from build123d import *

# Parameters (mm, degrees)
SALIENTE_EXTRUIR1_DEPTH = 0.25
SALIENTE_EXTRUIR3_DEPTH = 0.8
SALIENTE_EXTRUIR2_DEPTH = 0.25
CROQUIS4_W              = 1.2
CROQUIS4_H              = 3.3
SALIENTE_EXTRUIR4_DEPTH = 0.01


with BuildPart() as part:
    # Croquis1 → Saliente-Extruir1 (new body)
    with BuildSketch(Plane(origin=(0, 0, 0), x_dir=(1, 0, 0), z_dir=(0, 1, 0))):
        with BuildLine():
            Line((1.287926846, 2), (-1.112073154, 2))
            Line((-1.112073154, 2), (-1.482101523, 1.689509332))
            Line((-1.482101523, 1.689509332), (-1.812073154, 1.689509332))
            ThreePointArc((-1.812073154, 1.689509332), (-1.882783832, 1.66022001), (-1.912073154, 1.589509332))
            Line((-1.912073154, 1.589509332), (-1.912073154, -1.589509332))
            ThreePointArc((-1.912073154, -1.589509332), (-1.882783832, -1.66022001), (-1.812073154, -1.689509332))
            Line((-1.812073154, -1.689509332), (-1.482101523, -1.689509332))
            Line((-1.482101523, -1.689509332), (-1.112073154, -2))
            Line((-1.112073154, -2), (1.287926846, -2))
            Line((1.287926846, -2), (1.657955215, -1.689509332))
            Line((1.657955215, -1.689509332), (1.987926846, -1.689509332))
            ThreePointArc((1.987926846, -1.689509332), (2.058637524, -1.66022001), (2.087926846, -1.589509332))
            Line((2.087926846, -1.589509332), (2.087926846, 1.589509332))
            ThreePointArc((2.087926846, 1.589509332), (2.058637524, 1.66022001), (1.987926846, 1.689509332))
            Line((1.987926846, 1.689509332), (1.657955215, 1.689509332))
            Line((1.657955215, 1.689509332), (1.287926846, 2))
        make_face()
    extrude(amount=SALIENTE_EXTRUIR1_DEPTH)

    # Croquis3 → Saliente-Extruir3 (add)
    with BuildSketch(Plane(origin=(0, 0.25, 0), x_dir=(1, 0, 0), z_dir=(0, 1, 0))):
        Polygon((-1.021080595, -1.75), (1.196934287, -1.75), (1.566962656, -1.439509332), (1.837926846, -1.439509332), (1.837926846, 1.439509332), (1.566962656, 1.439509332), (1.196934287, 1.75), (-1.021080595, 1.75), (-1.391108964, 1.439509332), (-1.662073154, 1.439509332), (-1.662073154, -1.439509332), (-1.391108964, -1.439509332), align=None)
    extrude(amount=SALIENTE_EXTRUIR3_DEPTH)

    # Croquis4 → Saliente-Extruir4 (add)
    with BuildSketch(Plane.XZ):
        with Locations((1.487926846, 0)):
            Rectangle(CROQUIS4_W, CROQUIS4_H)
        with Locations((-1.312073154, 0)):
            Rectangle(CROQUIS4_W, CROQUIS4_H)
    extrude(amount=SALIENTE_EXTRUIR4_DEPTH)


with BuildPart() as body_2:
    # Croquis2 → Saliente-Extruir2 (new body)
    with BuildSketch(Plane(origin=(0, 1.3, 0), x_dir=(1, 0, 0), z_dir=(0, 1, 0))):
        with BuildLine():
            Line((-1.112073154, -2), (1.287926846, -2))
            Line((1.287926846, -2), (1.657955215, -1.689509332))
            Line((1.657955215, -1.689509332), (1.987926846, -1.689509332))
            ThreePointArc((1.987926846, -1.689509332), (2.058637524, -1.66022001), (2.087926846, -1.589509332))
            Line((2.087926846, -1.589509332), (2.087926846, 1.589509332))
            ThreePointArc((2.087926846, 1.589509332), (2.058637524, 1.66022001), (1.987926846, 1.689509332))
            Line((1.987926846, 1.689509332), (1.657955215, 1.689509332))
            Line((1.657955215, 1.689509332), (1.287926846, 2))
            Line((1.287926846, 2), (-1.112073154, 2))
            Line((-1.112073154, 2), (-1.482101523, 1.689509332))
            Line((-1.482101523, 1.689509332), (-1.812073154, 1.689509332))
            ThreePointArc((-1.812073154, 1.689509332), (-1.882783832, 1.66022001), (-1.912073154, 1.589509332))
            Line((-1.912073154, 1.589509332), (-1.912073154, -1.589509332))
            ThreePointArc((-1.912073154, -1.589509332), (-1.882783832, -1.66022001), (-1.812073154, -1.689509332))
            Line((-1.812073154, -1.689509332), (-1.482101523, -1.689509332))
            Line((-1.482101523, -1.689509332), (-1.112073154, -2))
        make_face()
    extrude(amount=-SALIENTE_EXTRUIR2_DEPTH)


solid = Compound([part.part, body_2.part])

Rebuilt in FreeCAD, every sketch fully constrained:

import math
import FreeCAD as App
import Part
import Sketcher

V = App.Vector
Q = App.Units.Quantity

doc = App.newDocument("Part")
params = doc.addObject("Spreadsheet::Sheet", "Params")
for row, (alias, value) in enumerate([
    ("sketch1_radius", "0.1 mm"),
    ("sketch1_width", "2.4 mm"),
    ("pad1_length", "0.25 mm"),
    ("pad2_length", "0.8 mm"),
    ("sketch3_width", "1.2 mm"),
    ("sketch3_height", "3.3 mm"),
    ("pad3_length", "0.01 mm"),
    ("sketch4_radius", "0.1 mm"),
    ("sketch4_width", "2.4 mm"),
    ("pad4_length", "0.25 mm"),
], start=1):
    params.set(f"A{row}", alias)
    params.set(f"B{row}", "=" + value)
    params.setAlias(f"B{row}", alias)

body = doc.addObject("PartDesign::Body", "Body")

# Sketch on XZ plane
sketch1 = body.newObject("Sketcher::SketchObject", "Sketch")
sketch1.AttachmentSupport = (doc.getObject("XZ_Plane"), [""])
sketch1.MapMode = "FlatFace"
sketch1.addGeometry([
    Part.LineSegment(V(1.287927, -2, 0), V(-1.112073, -2, 0)),  # 0
    Part.LineSegment(V(-1.112073, -2, 0), V(-1.482102, -1.689509, 0)),  # 1
    Part.LineSegment(V(-1.482102, -1.689509, 0), V(-1.812073, -1.689509, 0)),  # 2
    Part.ArcOfCircle(Part.Circle(V(-1.812073, -1.589509, 0), V(0, 0, 1), 0.1), math.radians(180), math.radians(270)),  # 3
    Part.LineSegment(V(-1.912073, -1.589509, 0), V(-1.912073, 1.589509, 0)),  # 4
    Part.ArcOfCircle(Part.Circle(V(-1.812073, 1.589509, 0), V(0, 0, 1), 0.1), math.radians(90), math.radians(180)),  # 5
    Part.LineSegment(V(-1.812073, 1.689509, 0), V(-1.482102, 1.689509, 0)),  # 6
    Part.LineSegment(V(-1.482102, 1.689509, 0), V(-1.112073, 2, 0)),  # 7
    Part.LineSegment(V(-1.112073, 2, 0), V(1.287927, 2, 0)),  # 8
    Part.LineSegment(V(1.287927, 2, 0), V(1.657955, 1.689509, 0)),  # 9
    Part.LineSegment(V(1.657955, 1.689509, 0), V(1.987927, 1.689509, 0)),  # 10
    Part.ArcOfCircle(Part.Circle(V(1.987927, 1.589509, 0), V(0, 0, 1), 0.1), math.radians(0), math.radians(90)),  # 11
    Part.LineSegment(V(2.087927, 1.589509, 0), V(2.087927, -1.589509, 0)),  # 12
    Part.ArcOfCircle(Part.Circle(V(1.987927, -1.589509, 0), V(0, 0, 1), 0.1), math.radians(-90), math.radians(0)),  # 13
    Part.LineSegment(V(1.987927, -1.689509, 0), V(1.657955, -1.689509, 0)),  # 14
    Part.LineSegment(V(1.657955, -1.689509, 0), V(1.287927, -2, 0)),  # 15
], False)
sketch1.addConstraint([
    Sketcher.Constraint("Coincident", 0, 2, 1, 1),
    Sketcher.Constraint("Coincident", 1, 2, 2, 1),
    Sketcher.Constraint("Tangent", 2, 2, 3, 2),
    Sketcher.Constraint("Tangent", 3, 1, 4, 1),
    Sketcher.Constraint("Tangent", 4, 2, 5, 2),
    Sketcher.Constraint("Tangent", 5, 1, 6, 1),
    Sketcher.Constraint("Coincident", 6, 2, 7, 1),
    Sketcher.Constraint("Coincident", 7, 2, 8, 1),
    Sketcher.Constraint("Coincident", 8, 2, 9, 1),
    Sketcher.Constraint("Coincident", 9, 2, 10, 1),
    Sketcher.Constraint("Tangent", 10, 2, 11, 2),
    Sketcher.Constraint("Tangent", 11, 1, 12, 1),
    Sketcher.Constraint("Tangent", 12, 2, 13, 2),
    Sketcher.Constraint("Tangent", 13, 1, 14, 1),
    Sketcher.Constraint("Coincident", 14, 2, 15, 1),
    Sketcher.Constraint("Coincident", 15, 2, 0, 1),
    Sketcher.Constraint("Horizontal", 0),
    Sketcher.Constraint("Horizontal", 2),
    Sketcher.Constraint("Vertical", 4),
    Sketcher.Constraint("Horizontal", 6),
    Sketcher.Constraint("Horizontal", 8),
    Sketcher.Constraint("Horizontal", 10),
    Sketcher.Constraint("Vertical", 12),
    Sketcher.Constraint("Horizontal", 14),
    Sketcher.Constraint("Equal", 3, 5),
    Sketcher.Constraint("Equal", 5, 11),
    Sketcher.Constraint("Equal", 11, 13),
    Sketcher.Constraint("Symmetric", 1, 2, 6, 2, -1),
    Sketcher.Constraint("Symmetric", 0, 2, 7, 2, -1),
    Sketcher.Constraint("Symmetric", 9, 2, 14, 2, -1),
    Sketcher.Constraint("Parallel", 1, 9),
    Sketcher.Constraint("Parallel", 7, 15),
    Sketcher.Constraint("Horizontal", 5, 3, 11, 3),
    Sketcher.Constraint("Equal", 6, 10),
    Sketcher.Constraint("Radius", 3, Q("0.1 mm")),
    Sketcher.Constraint("Angle", 1, Q("140 deg")),
    Sketcher.Constraint("DistanceX", 0, 2, 0, 1, Q("2.4 mm")),
    Sketcher.Constraint("DistanceY", 0, 2, -1, 1, Q("2 mm")),
    Sketcher.Constraint("DistanceX", 5, 3, 11, 3, Q("3.8 mm")),
    Sketcher.Constraint("DistanceX", 2, 2, 2, 1, Q("0.329972 mm")),
    Sketcher.Constraint("DistanceX", 1, 2, -1, 1, Q("1.482102 mm")),
])
sketch1.setExpression("Constraints[34]", "Params.sketch1_radius")
sketch1.setExpression("Constraints[36]", "Params.sketch1_width")
pad1 = body.newObject("PartDesign::Pad", "Pad")
pad1.Profile = sketch1
pad1.setExpression("Length", "Params.pad1_length")
pad1.Reversed = True

# Sketch on XZ plane
sketch2 = body.newObject("Sketcher::SketchObject", "Sketch001")
sketch2.AttachmentSupport = (doc.getObject("XZ_Plane"), [""])
sketch2.MapMode = "FlatFace"
sketch2.AttachmentOffset = App.Placement(V(0, 0, -0.25), App.Rotation())
sketch2.addGeometry([
    Part.LineSegment(V(-1.021081, 1.75, 0), V(1.196934, 1.75, 0)),  # 0
    Part.LineSegment(V(1.196934, 1.75, 0), V(1.566963, 1.439509, 0)),  # 1
    Part.LineSegment(V(1.566963, 1.439509, 0), V(1.837927, 1.439509, 0)),  # 2
    Part.LineSegment(V(1.837927, 1.439509, 0), V(1.837927, -1.439509, 0)),  # 3
    Part.LineSegment(V(1.837927, -1.439509, 0), V(1.566963, -1.439509, 0)),  # 4
    Part.LineSegment(V(1.566963, -1.439509, 0), V(1.196934, -1.75, 0)),  # 5
    Part.LineSegment(V(1.196934, -1.75, 0), V(-1.021081, -1.75, 0)),  # 6
    Part.LineSegment(V(-1.021081, -1.75, 0), V(-1.391109, -1.439509, 0)),  # 7
    Part.LineSegment(V(-1.391109, -1.439509, 0), V(-1.662073, -1.439509, 0)),  # 8
    Part.LineSegment(V(-1.662073, -1.439509, 0), V(-1.662073, 1.439509, 0)),  # 9
    Part.LineSegment(V(-1.662073, 1.439509, 0), V(-1.391109, 1.439509, 0)),  # 10
    Part.LineSegment(V(-1.391109, 1.439509, 0), V(-1.021081, 1.75, 0)),  # 11
], False)
sketch2.addConstraint([
    Sketcher.Constraint("Coincident", 0, 2, 1, 1),
    Sketcher.Constraint("Coincident", 1, 2, 2, 1),
    Sketcher.Constraint("Coincident", 2, 2, 3, 1),
    Sketcher.Constraint("Coincident", 3, 2, 4, 1),
    Sketcher.Constraint("Coincident", 4, 2, 5, 1),
    Sketcher.Constraint("Coincident", 5, 2, 6, 1),
    Sketcher.Constraint("Coincident", 6, 2, 7, 1),
    Sketcher.Constraint("Coincident", 7, 2, 8, 1),
    Sketcher.Constraint("Coincident", 8, 2, 9, 1),
    Sketcher.Constraint("Coincident", 9, 2, 10, 1),
    Sketcher.Constraint("Coincident", 10, 2, 11, 1),
    Sketcher.Constraint("Coincident", 11, 2, 0, 1),
    Sketcher.Constraint("Horizontal", 0),
    Sketcher.Constraint("Horizontal", 2),
    Sketcher.Constraint("Vertical", 3),
    Sketcher.Constraint("Horizontal", 4),
    Sketcher.Constraint("Horizontal", 6),
    Sketcher.Constraint("Horizontal", 8),
    Sketcher.Constraint("Vertical", 9),
    Sketcher.Constraint("Horizontal", 10),
    Sketcher.Constraint("Symmetric", 1, 2, 4, 2, -1),
    Sketcher.Constraint("Symmetric", 0, 2, 5, 2, -1),
    Sketcher.Constraint("Symmetric", 7, 2, 10, 2, -1),
    Sketcher.Constraint("Parallel", 1, 7),
    Sketcher.Constraint("Parallel", 5, 11),
    Sketcher.Constraint("Horizontal", 4, 2, 7, 2),
    Sketcher.Constraint("Equal", 4, 8),
    Sketcher.Constraint("Angle", 1, Q("-40 deg")),
    Sketcher.Constraint("DistanceY", 5, 2, 0, 2, Q("3.5 mm")),
    Sketcher.Constraint("DistanceX", 8, 2, 3, 2, Q("3.5 mm")),
    Sketcher.Constraint("DistanceY", 3, 2, 3, 1, Q("2.879019 mm")),
    Sketcher.Constraint("DistanceX", 0, 1, 0, 2, Q("2.218015 mm")),
    Sketcher.Constraint("DistanceX", 6, 2, -1, 1, Q("1.021081 mm")),
])
pad2 = body.newObject("PartDesign::Pad", "Pad001")
pad2.Profile = sketch2
pad2.setExpression("Length", "Params.pad2_length")
pad2.Reversed = True

# Sketch on XZ plane
sketch3 = body.newObject("Sketcher::SketchObject", "Sketch002")
sketch3.AttachmentSupport = (doc.getObject("XZ_Plane"), [""])
sketch3.MapMode = "FlatFace"
sketch3.addGeometry([
    Part.LineSegment(V(0.887927, 1.65, 0), V(0.887927, -1.65, 0)),  # 0
    Part.LineSegment(V(0.887927, -1.65, 0), V(2.087927, -1.65, 0)),  # 1
    Part.LineSegment(V(2.087927, -1.65, 0), V(2.087927, 1.65, 0)),  # 2
    Part.LineSegment(V(2.087927, 1.65, 0), V(0.887927, 1.65, 0)),  # 3
    Part.LineSegment(V(-1.912073, 1.65, 0), V(-1.912073, -1.65, 0)),  # 4
    Part.LineSegment(V(-1.912073, -1.65, 0), V(-0.712073, -1.65, 0)),  # 5
    Part.LineSegment(V(-0.712073, -1.65, 0), V(-0.712073, 1.65, 0)),  # 6
    Part.LineSegment(V(-0.712073, 1.65, 0), V(-1.912073, 1.65, 0)),  # 7
], False)
sketch3.addConstraint([
    Sketcher.Constraint("Coincident", 0, 2, 1, 1),
    Sketcher.Constraint("Coincident", 1, 2, 2, 1),
    Sketcher.Constraint("Coincident", 2, 2, 3, 1),
    Sketcher.Constraint("Coincident", 3, 2, 0, 1),
    Sketcher.Constraint("Coincident", 4, 2, 5, 1),
    Sketcher.Constraint("Coincident", 5, 2, 6, 1),
    Sketcher.Constraint("Coincident", 6, 2, 7, 1),
    Sketcher.Constraint("Coincident", 7, 2, 4, 1),
    Sketcher.Constraint("Vertical", 0),
    Sketcher.Constraint("Horizontal", 1),
    Sketcher.Constraint("Vertical", 2),
    Sketcher.Constraint("Horizontal", 3),
    Sketcher.Constraint("Vertical", 4),
    Sketcher.Constraint("Horizontal", 5),
    Sketcher.Constraint("Vertical", 6),
    Sketcher.Constraint("Horizontal", 7),
    Sketcher.Constraint("Horizontal", 1, 2, 4, 2),
    Sketcher.Constraint("Horizontal", 3, 2, 6, 2),
    Sketcher.Constraint("Equal", 3, 5),
    Sketcher.Constraint("DistanceX", 1, 1, 1, 2, Q("1.2 mm")),
    Sketcher.Constraint("DistanceY", 0, 2, 0, 1, Q("3.3 mm")),
    Sketcher.Constraint("DistanceX", 4, 2, 1, 2, Q("4 mm")),
    Sketcher.Constraint("DistanceY", 0, 2, -1, 1, Q("1.65 mm")),
    Sketcher.Constraint("DistanceX", -1, 1, 0, 2, Q("0.887927 mm")),
])
sketch3.setExpression("Constraints[19]", "Params.sketch3_width")
sketch3.setExpression("Constraints[20]", "Params.sketch3_height")
pad3 = body.newObject("PartDesign::Pad", "Pad002")
pad3.Profile = sketch3
pad3.setExpression("Length", "Params.pad3_length")
body2 = doc.addObject("PartDesign::Body", "Body001")

# Sketch on XZ plane
sketch4 = body2.newObject("Sketcher::SketchObject", "Sketch003")
sketch4.AttachmentSupport = (doc.getObject("XZ_Plane001"), [""])
sketch4.MapMode = "FlatFace"
sketch4.AttachmentOffset = App.Placement(V(0, 0, -1.3), App.Rotation())
sketch4.addGeometry([
    Part.LineSegment(V(-1.112073, 2, 0), V(1.287927, 2, 0)),  # 0
    Part.LineSegment(V(1.287927, 2, 0), V(1.657955, 1.689509, 0)),  # 1
    Part.LineSegment(V(1.657955, 1.689509, 0), V(1.987927, 1.689509, 0)),  # 2
    Part.ArcOfCircle(Part.Circle(V(1.987927, 1.589509, 0), V(0, 0, 1), 0.1), math.radians(0), math.radians(90)),  # 3
    Part.LineSegment(V(2.087927, 1.589509, 0), V(2.087927, -1.589509, 0)),  # 4
    Part.ArcOfCircle(Part.Circle(V(1.987927, -1.589509, 0), V(0, 0, 1), 0.1), math.radians(-90), math.radians(0)),  # 5
    Part.LineSegment(V(1.987927, -1.689509, 0), V(1.657955, -1.689509, 0)),  # 6
    Part.LineSegment(V(1.657955, -1.689509, 0), V(1.287927, -2, 0)),  # 7
    Part.LineSegment(V(1.287927, -2, 0), V(-1.112073, -2, 0)),  # 8
    Part.LineSegment(V(-1.112073, -2, 0), V(-1.482102, -1.689509, 0)),  # 9
    Part.LineSegment(V(-1.482102, -1.689509, 0), V(-1.812073, -1.689509, 0)),  # 10
    Part.ArcOfCircle(Part.Circle(V(-1.812073, -1.589509, 0), V(0, 0, 1), 0.1), math.radians(180), math.radians(270)),  # 11
    Part.LineSegment(V(-1.912073, -1.589509, 0), V(-1.912073, 1.589509, 0)),  # 12
    Part.ArcOfCircle(Part.Circle(V(-1.812073, 1.589509, 0), V(0, 0, 1), 0.1), math.radians(90), math.radians(180)),  # 13
    Part.LineSegment(V(-1.812073, 1.689509, 0), V(-1.482102, 1.689509, 0)),  # 14
    Part.LineSegment(V(-1.482102, 1.689509, 0), V(-1.112073, 2, 0)),  # 15
], False)
sketch4.addConstraint([
    Sketcher.Constraint("Coincident", 0, 2, 1, 1),
    Sketcher.Constraint("Coincident", 1, 2, 2, 1),
    Sketcher.Constraint("Tangent", 2, 2, 3, 2),
    Sketcher.Constraint("Tangent", 3, 1, 4, 1),
    Sketcher.Constraint("Tangent", 4, 2, 5, 2),
    Sketcher.Constraint("Tangent", 5, 1, 6, 1),
    Sketcher.Constraint("Coincident", 6, 2, 7, 1),
    Sketcher.Constraint("Coincident", 7, 2, 8, 1),
    Sketcher.Constraint("Coincident", 8, 2, 9, 1),
    Sketcher.Constraint("Coincident", 9, 2, 10, 1),
    Sketcher.Constraint("Tangent", 10, 2, 11, 2),
    Sketcher.Constraint("Tangent", 11, 1, 12, 1),
    Sketcher.Constraint("Tangent", 12, 2, 13, 2),
    Sketcher.Constraint("Tangent", 13, 1, 14, 1),
    Sketcher.Constraint("Coincident", 14, 2, 15, 1),
    Sketcher.Constraint("Coincident", 15, 2, 0, 1),
    Sketcher.Constraint("Horizontal", 0),
    Sketcher.Constraint("Horizontal", 2),
    Sketcher.Constraint("Vertical", 4),
    Sketcher.Constraint("Horizontal", 6),
    Sketcher.Constraint("Horizontal", 8),
    Sketcher.Constraint("Horizontal", 10),
    Sketcher.Constraint("Vertical", 12),
    Sketcher.Constraint("Horizontal", 14),
    Sketcher.Constraint("Equal", 3, 5),
    Sketcher.Constraint("Equal", 5, 11),
    Sketcher.Constraint("Equal", 11, 13),
    Sketcher.Constraint("Symmetric", 1, 2, 6, 2, -1),
    Sketcher.Constraint("Symmetric", 0, 2, 7, 2, -1),
    Sketcher.Constraint("Symmetric", 9, 2, 14, 2, -1),
    Sketcher.Constraint("Parallel", 1, 9),
    Sketcher.Constraint("Parallel", 7, 15),
    Sketcher.Constraint("Horizontal", 5, 3, 11, 3),
    Sketcher.Constraint("Equal", 6, 10),
    Sketcher.Constraint("Radius", 3, Q("0.1 mm")),
    Sketcher.Constraint("Angle", 1, Q("-40 deg")),
    Sketcher.Constraint("DistanceX", 0, 1, 0, 2, Q("2.4 mm")),
    Sketcher.Constraint("DistanceY", -1, 1, 0, 2, Q("2 mm")),
    Sketcher.Constraint("DistanceX", 11, 3, 5, 3, Q("3.8 mm")),
    Sketcher.Constraint("DistanceX", 2, 1, 2, 2, Q("0.329972 mm")),
    Sketcher.Constraint("DistanceX", 9, 2, -1, 1, Q("1.482102 mm")),
])
sketch4.setExpression("Constraints[34]", "Params.sketch4_radius")
sketch4.setExpression("Constraints[36]", "Params.sketch4_width")
pad4 = body2.newObject("PartDesign::Pad", "Pad003")
pad4.Profile = sketch4
pad4.setExpression("Length", "Params.pad4_length")

doc.recompute()
